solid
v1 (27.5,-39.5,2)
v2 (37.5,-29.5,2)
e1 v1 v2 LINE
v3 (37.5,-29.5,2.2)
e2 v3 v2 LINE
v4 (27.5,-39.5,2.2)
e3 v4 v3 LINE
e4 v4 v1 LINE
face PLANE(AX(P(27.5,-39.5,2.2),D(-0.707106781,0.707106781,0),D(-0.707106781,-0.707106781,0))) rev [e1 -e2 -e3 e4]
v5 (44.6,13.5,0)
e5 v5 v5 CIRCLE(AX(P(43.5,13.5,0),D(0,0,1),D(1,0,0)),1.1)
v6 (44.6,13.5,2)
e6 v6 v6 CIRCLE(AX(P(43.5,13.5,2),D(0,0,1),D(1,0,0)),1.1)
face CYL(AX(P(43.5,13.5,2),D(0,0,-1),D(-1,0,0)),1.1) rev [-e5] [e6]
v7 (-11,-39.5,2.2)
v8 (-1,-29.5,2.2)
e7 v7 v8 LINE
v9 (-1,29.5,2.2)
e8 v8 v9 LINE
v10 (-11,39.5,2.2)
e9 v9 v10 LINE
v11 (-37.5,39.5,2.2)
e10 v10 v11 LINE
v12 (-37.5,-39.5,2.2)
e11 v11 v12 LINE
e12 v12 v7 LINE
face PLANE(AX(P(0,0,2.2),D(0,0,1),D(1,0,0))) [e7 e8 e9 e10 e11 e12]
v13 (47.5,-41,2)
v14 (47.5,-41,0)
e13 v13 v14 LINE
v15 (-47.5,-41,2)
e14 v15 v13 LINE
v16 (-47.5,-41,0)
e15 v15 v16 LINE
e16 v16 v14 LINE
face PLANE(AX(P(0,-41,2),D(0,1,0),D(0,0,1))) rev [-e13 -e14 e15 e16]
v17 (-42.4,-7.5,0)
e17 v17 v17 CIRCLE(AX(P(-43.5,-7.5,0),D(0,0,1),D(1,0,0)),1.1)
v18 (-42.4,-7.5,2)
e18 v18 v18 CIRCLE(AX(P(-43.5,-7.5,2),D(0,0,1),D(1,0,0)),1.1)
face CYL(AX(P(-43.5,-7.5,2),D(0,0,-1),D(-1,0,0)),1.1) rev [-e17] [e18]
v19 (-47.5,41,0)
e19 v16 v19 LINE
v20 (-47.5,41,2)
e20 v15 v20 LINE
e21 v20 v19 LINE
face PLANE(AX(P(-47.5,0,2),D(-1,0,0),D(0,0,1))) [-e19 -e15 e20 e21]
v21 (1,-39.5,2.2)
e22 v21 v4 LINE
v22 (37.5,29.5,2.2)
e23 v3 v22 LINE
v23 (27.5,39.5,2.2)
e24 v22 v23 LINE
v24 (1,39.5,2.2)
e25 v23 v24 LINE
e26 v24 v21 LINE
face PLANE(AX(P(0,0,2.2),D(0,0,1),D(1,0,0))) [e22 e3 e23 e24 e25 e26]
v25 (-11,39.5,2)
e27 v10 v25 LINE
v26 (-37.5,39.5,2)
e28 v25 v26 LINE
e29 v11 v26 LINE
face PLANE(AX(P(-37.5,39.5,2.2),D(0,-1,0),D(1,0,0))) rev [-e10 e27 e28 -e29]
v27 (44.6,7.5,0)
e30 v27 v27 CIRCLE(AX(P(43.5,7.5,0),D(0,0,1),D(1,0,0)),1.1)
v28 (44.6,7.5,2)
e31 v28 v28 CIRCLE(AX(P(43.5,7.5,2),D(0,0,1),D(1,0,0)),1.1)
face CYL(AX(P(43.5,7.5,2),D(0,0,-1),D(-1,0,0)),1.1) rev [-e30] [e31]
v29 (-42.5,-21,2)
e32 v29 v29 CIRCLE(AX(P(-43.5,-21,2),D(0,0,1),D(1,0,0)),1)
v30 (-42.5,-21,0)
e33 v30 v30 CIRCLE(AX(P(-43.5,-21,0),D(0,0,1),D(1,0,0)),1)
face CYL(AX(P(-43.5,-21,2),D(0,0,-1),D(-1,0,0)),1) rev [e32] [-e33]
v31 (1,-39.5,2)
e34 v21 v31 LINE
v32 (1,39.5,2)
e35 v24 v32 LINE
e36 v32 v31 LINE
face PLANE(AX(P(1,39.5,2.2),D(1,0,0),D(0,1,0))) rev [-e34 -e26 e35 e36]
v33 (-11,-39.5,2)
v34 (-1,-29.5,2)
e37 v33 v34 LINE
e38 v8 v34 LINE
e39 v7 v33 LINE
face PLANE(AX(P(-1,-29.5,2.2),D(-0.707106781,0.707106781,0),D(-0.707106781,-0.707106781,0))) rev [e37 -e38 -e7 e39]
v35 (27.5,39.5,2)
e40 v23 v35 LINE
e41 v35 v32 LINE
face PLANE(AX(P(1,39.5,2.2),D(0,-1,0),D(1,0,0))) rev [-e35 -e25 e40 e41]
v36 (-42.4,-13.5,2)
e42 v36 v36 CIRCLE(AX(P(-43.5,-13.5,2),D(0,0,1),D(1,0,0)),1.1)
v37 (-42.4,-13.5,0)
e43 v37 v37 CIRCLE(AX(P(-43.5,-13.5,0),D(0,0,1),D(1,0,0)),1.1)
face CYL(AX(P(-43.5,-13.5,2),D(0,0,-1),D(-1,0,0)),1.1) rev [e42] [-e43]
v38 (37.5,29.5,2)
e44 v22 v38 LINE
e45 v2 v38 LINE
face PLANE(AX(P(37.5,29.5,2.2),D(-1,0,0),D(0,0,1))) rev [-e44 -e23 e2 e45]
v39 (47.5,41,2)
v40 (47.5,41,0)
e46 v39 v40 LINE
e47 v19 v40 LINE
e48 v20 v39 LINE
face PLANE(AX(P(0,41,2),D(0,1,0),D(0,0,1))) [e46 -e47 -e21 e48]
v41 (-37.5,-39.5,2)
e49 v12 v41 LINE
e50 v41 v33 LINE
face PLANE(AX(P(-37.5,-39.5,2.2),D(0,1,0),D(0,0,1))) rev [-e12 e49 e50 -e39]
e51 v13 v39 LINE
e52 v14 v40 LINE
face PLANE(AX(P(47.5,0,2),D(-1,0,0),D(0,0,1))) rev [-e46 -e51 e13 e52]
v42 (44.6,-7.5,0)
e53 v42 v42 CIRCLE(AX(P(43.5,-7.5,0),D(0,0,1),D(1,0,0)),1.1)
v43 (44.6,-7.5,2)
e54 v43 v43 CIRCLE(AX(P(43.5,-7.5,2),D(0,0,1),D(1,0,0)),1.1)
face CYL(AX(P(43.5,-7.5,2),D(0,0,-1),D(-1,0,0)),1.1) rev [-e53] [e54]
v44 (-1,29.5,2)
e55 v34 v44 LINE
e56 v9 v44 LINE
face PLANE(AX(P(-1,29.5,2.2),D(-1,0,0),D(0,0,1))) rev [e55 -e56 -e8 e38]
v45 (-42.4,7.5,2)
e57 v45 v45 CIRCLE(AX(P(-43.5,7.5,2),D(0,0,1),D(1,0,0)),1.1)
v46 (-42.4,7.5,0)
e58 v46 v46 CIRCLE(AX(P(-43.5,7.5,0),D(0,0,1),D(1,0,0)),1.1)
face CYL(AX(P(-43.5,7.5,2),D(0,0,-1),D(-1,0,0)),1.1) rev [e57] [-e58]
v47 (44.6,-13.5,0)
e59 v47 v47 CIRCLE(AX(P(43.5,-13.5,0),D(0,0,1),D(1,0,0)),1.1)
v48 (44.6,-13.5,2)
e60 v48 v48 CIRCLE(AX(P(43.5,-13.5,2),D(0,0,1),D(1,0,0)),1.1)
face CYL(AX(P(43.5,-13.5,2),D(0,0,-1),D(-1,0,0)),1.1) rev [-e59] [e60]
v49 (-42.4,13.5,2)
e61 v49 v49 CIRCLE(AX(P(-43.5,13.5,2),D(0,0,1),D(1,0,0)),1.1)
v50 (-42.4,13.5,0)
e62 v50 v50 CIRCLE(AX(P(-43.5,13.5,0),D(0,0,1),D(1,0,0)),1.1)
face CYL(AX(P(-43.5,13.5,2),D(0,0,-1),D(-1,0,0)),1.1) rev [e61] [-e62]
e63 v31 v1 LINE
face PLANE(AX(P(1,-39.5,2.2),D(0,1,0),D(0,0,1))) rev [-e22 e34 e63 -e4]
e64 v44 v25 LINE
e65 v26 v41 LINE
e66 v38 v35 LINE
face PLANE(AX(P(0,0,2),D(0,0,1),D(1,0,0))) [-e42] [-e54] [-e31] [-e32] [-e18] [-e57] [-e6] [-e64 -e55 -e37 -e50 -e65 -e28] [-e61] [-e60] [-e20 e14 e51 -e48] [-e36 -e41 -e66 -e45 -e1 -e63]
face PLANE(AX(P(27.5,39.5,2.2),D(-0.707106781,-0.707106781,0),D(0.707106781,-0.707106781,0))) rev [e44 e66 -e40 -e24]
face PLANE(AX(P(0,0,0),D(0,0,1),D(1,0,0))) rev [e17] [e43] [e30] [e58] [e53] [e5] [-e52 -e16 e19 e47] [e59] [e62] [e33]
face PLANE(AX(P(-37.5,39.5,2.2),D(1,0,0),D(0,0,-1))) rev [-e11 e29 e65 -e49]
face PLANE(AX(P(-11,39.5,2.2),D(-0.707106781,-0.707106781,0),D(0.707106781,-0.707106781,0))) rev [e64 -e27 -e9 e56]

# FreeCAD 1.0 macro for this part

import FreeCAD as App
import Part
import Sketcher
Q = App.Units.Quantity


def add_polygon(sketch, points):
    """Adds a closed chain of lines whose ends are joined by coincident constraints."""
    first, n = sketch.GeometryCount, len(points)
    for a, b in zip(points, points[1:] + points[:1]):
        sketch.addGeometry(Part.LineSegment(App.Vector(*a, 0), App.Vector(*b, 0)), False)
    for i in range(n):
        sketch.addConstraint(Sketcher.Constraint("Coincident", first + i, 2, first + (i + 1) % n, 1))

doc = App.newDocument("Part")
body = doc.addObject("PartDesign::Body", "Body")

# Sketch on XY plane
sketch1 = body.newObject("Sketcher::SketchObject", "Sketch")
sketch1.AttachmentSupport = (doc.getObject("XY_Plane"), [""])
sketch1.MapMode = "FlatFace"
add_polygon(sketch1, [(-47.5, 41), (-47.5, -41), (47.5, -41), (47.5, 41)])  # lines 0-3
sketch1.addGeometry(Part.Circle(App.Vector(-43.5, -21, 0), App.Vector(0, 0, 1), 1), False)  # 4
sketch1.addGeometry(Part.Circle(App.Vector(-43.5, -13.5, 0), App.Vector(0, 0, 1), 1.1), False)  # 5
sketch1.addGeometry(Part.Circle(App.Vector(-43.5, -7.5, 0), App.Vector(0, 0, 1), 1.1), False)  # 6
sketch1.addGeometry(Part.Circle(App.Vector(43.5, -13.5, 0), App.Vector(0, 0, 1), 1.1), False)  # 7
sketch1.addGeometry(Part.Circle(App.Vector(43.5, -7.5, 0), App.Vector(0, 0, 1), 1.1), False)  # 8
sketch1.addGeometry(Part.Circle(App.Vector(-43.5, 7.5, 0), App.Vector(0, 0, 1), 1.1), False)  # 9
sketch1.addGeometry(Part.Circle(App.Vector(-43.5, 13.5, 0), App.Vector(0, 0, 1), 1.1), False)  # 10
sketch1.addGeometry(Part.Circle(App.Vector(43.5, 7.5, 0), App.Vector(0, 0, 1), 1.1), False)  # 11
sketch1.addGeometry(Part.Circle(App.Vector(43.5, 13.5, 0), App.Vector(0, 0, 1), 1.1), False)  # 12
sketch1.addConstraint([
    Sketcher.Constraint("Vertical", 0),
    Sketcher.Constraint("Horizontal", 1),
    Sketcher.Constraint("Vertical", 2),
    Sketcher.Constraint("Horizontal", 3),
    Sketcher.Constraint("Equal", 5, 6),
    Sketcher.Constraint("Equal", 6, 7),
    Sketcher.Constraint("Equal", 7, 8),
    Sketcher.Constraint("Equal", 8, 9),
    Sketcher.Constraint("Equal", 9, 10),
    Sketcher.Constraint("Equal", 10, 11),
    Sketcher.Constraint("Equal", 11, 12),
    Sketcher.Constraint("Symmetric", 8, 3, 9, 3, -1, 1),
    Sketcher.Constraint("Symmetric", 7, 3, 10, 3, -1, 1),
    Sketcher.Constraint("Symmetric", 6, 3, 11, 3, -1, 1),
    Sketcher.Constraint("Symmetric", 5, 3, 12, 3, -1, 1),
    Sketcher.Constraint("Symmetric", 0, 2, 2, 2, -1, 1),
    Sketcher.Constraint("Symmetric", 5, 3, 7, 3, -2),
    Sketcher.Constraint("Symmetric", 6, 3, 8, 3, -2),
    Sketcher.Constraint("Vertical", 4, 3, 5, 3),
    Sketcher.Constraint("Vertical", 5, 3, 6, 3),
    Sketcher.Constraint("Diameter", 4, Q("2 mm")),
    Sketcher.Constraint("Diameter", 5, Q("2.2 mm")),
    Sketcher.Constraint("DistanceX", 1, 1, 1, 2, Q("95 mm")),
    Sketcher.Constraint("DistanceY", 0, 2, 0, 1, Q("82 mm")),
    Sketcher.Constraint("DistanceY", 4, 3, -1, 1, Q("21 mm")),
    Sketcher.Constraint("DistanceY", 5, 3, 6, 3, Q("6 mm")),
    Sketcher.Constraint("DistanceX", 5, 3, 7, 3, Q("87 mm")),
    Sketcher.Constraint("DistanceY", 6, 3, 9, 3, Q("15 mm")),
])
pad1 = body.newObject("PartDesign::Pad", "Pad")
pad1.Profile = sketch1
pad1.Length = 2

# Sketch on XY plane
sketch2 = body.newObject("Sketcher::SketchObject", "Sketch001")
sketch2.AttachmentSupport = (doc.getObject("XY_Plane"), [""])
sketch2.MapMode = "FlatFace"
sketch2.AttachmentOffset = App.Placement(App.Vector(0, 0, 2), App.Rotation())
add_polygon(sketch2, [(-1, 30), (-11, 40), (-38, 40), (-38, -40), (-11, -40), (-1, -30)])  # lines 0-5
add_polygon(sketch2, [(28, 40), (1, 40), (1, -40), (28, -40), (38, -30), (38, 30)])  # lines 6-11
sketch2.addConstraint([
    Sketcher.Constraint("Horizontal", 1),
    Sketcher.Constraint("Vertical", 2),
    Sketcher.Constraint("Horizontal", 3),
    Sketcher.Constraint("Vertical", 5),
    Sketcher.Constraint("Horizontal", 6),
    Sketcher.Constraint("Vertical", 7),
    Sketcher.Constraint("Horizontal", 8),
    Sketcher.Constraint("Vertical", 10),
    Sketcher.Constraint("Symmetric", 0, 2, 3, 2, -1),
    Sketcher.Constraint("Symmetric", 8, 2, 11, 2, -1),
    Sketcher.Constraint("Perpendicular", 0, 4),
    Sketcher.Constraint("Parallel", 4, 9),
    Sketcher.Constraint("Perpendicular", 9, 11),
    Sketcher.Constraint("Horizontal", 1, 2, 6, 2),
    Sketcher.Constraint("Horizontal", 4, 2, 9, 2),
    Sketcher.Constraint("Equal", 3, 6),
    Sketcher.Constraint("Equal", 0, 4),
    Sketcher.Constraint("DistanceY", 2, 2, 2, 1, Q("79 mm")),
    Sketcher.Constraint("DistanceY", 5, 1, 5, 2, Q("59 mm")),
    Sketcher.Constraint("DistanceX", 1, 2, 1, 1, Q("26.5 mm")),
    Sketcher.Constraint("DistanceX", 0, 2, -1, 1, Q("11 mm")),
    Sketcher.Constraint("DistanceX", -1, 1, 6, 2, Q("1 mm")),
])
pad2 = body.newObject("PartDesign::Pad", "Pad001")
pad2.Profile = sketch2
pad2.Length = 0.2

doc.recompute()
